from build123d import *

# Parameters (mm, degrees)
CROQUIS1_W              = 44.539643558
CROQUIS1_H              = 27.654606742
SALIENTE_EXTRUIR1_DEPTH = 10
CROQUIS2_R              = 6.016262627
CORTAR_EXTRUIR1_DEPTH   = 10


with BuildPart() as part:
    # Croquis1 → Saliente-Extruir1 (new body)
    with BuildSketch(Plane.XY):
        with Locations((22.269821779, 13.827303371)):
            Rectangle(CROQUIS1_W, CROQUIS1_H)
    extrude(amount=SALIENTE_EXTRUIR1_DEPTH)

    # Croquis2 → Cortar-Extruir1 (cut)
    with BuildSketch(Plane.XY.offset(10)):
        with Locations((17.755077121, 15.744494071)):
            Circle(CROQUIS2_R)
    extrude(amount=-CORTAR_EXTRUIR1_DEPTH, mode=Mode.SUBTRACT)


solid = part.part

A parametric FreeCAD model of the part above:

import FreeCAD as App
import Part
import Sketcher

V = App.Vector

doc = App.newDocument("Part")
body = doc.addObject("PartDesign::Body", "Body")

sketch1 = body.newObject("Sketcher::SketchObject", "Sketch")
sketch1.AttachmentSupport = (doc.getObject("XY_Plane"), [""])
sketch1.MapMode = "FlatFace"
sketch1.addGeometry(Part.LineSegment(V(0, 28, 0), V(0, 0, 0)), False)
sketch1.addGeometry(Part.LineSegment(V(0, 0, 0), V(45, 0, 0)), False)
sketch1.addGeometry(Part.LineSegment(V(45, 0, 0), V(45, 28, 0)), False)
sketch1.addGeometry(Part.LineSegment(V(45, 28, 0), V(0, 28, 0)), False)
sketch1.addConstraint(Sketcher.Constraint("Coincident", 0, 2, 1, 1))
sketch1.addConstraint(Sketcher.Constraint("Coincident", 1, 2, 2, 1))
sketch1.addConstraint(Sketcher.Constraint("Coincident", 2, 2, 3, 1))
sketch1.addConstraint(Sketcher.Constraint("Coincident", 3, 2, 0, 1))
sketch1.addConstraint(Sketcher.Constraint("Vertical", 0))
sketch1.addConstraint(Sketcher.Constraint("Horizontal", 1))
sketch1.addConstraint(Sketcher.Constraint("Vertical", 2))
sketch1.addConstraint(Sketcher.Constraint("Horizontal", 3))
sketch1.addConstraint(Sketcher.Constraint("Coincident", 0, 2, -1, 1))
sketch1.addConstraint(Sketcher.Constraint("DistanceX", 1, 1, 1, 2, 44.539644))
sketch1.addConstraint(Sketcher.Constraint("DistanceY", 0, 2, 0, 1, 27.654607))
pad1 = body.newObject("PartDesign::Pad", "Pad")
pad1.Profile = sketch1
pad1.Length = 10

sketch2 = body.newObject("Sketcher::SketchObject", "Sketch001")
sketch2.AttachmentSupport = (doc.getObject("XY_Plane"), [""])
sketch2.MapMode = "FlatFace"
sketch2.AttachmentOffset = App.Placement(V(0, 0, 10), App.Rotation())
sketch2.addGeometry(Part.Circle(V(18, 16, 0), V(0, 0, 1), 6), False)
sketch2.addConstraint(Sketcher.Constraint("Diameter", 0, 12.032525))
sketch2.addConstraint(Sketcher.Constraint("DistanceX", -1, 1, 0, 3, 17.755077))
sketch2.addConstraint(Sketcher.Constraint("DistanceY", -1, 1, 0, 3, 15.744494))
pocket1 = body.newObject("PartDesign::Pocket", "Pocket")
pocket1.Profile = sketch2
pocket1.Length = 10

doc.recompute()
